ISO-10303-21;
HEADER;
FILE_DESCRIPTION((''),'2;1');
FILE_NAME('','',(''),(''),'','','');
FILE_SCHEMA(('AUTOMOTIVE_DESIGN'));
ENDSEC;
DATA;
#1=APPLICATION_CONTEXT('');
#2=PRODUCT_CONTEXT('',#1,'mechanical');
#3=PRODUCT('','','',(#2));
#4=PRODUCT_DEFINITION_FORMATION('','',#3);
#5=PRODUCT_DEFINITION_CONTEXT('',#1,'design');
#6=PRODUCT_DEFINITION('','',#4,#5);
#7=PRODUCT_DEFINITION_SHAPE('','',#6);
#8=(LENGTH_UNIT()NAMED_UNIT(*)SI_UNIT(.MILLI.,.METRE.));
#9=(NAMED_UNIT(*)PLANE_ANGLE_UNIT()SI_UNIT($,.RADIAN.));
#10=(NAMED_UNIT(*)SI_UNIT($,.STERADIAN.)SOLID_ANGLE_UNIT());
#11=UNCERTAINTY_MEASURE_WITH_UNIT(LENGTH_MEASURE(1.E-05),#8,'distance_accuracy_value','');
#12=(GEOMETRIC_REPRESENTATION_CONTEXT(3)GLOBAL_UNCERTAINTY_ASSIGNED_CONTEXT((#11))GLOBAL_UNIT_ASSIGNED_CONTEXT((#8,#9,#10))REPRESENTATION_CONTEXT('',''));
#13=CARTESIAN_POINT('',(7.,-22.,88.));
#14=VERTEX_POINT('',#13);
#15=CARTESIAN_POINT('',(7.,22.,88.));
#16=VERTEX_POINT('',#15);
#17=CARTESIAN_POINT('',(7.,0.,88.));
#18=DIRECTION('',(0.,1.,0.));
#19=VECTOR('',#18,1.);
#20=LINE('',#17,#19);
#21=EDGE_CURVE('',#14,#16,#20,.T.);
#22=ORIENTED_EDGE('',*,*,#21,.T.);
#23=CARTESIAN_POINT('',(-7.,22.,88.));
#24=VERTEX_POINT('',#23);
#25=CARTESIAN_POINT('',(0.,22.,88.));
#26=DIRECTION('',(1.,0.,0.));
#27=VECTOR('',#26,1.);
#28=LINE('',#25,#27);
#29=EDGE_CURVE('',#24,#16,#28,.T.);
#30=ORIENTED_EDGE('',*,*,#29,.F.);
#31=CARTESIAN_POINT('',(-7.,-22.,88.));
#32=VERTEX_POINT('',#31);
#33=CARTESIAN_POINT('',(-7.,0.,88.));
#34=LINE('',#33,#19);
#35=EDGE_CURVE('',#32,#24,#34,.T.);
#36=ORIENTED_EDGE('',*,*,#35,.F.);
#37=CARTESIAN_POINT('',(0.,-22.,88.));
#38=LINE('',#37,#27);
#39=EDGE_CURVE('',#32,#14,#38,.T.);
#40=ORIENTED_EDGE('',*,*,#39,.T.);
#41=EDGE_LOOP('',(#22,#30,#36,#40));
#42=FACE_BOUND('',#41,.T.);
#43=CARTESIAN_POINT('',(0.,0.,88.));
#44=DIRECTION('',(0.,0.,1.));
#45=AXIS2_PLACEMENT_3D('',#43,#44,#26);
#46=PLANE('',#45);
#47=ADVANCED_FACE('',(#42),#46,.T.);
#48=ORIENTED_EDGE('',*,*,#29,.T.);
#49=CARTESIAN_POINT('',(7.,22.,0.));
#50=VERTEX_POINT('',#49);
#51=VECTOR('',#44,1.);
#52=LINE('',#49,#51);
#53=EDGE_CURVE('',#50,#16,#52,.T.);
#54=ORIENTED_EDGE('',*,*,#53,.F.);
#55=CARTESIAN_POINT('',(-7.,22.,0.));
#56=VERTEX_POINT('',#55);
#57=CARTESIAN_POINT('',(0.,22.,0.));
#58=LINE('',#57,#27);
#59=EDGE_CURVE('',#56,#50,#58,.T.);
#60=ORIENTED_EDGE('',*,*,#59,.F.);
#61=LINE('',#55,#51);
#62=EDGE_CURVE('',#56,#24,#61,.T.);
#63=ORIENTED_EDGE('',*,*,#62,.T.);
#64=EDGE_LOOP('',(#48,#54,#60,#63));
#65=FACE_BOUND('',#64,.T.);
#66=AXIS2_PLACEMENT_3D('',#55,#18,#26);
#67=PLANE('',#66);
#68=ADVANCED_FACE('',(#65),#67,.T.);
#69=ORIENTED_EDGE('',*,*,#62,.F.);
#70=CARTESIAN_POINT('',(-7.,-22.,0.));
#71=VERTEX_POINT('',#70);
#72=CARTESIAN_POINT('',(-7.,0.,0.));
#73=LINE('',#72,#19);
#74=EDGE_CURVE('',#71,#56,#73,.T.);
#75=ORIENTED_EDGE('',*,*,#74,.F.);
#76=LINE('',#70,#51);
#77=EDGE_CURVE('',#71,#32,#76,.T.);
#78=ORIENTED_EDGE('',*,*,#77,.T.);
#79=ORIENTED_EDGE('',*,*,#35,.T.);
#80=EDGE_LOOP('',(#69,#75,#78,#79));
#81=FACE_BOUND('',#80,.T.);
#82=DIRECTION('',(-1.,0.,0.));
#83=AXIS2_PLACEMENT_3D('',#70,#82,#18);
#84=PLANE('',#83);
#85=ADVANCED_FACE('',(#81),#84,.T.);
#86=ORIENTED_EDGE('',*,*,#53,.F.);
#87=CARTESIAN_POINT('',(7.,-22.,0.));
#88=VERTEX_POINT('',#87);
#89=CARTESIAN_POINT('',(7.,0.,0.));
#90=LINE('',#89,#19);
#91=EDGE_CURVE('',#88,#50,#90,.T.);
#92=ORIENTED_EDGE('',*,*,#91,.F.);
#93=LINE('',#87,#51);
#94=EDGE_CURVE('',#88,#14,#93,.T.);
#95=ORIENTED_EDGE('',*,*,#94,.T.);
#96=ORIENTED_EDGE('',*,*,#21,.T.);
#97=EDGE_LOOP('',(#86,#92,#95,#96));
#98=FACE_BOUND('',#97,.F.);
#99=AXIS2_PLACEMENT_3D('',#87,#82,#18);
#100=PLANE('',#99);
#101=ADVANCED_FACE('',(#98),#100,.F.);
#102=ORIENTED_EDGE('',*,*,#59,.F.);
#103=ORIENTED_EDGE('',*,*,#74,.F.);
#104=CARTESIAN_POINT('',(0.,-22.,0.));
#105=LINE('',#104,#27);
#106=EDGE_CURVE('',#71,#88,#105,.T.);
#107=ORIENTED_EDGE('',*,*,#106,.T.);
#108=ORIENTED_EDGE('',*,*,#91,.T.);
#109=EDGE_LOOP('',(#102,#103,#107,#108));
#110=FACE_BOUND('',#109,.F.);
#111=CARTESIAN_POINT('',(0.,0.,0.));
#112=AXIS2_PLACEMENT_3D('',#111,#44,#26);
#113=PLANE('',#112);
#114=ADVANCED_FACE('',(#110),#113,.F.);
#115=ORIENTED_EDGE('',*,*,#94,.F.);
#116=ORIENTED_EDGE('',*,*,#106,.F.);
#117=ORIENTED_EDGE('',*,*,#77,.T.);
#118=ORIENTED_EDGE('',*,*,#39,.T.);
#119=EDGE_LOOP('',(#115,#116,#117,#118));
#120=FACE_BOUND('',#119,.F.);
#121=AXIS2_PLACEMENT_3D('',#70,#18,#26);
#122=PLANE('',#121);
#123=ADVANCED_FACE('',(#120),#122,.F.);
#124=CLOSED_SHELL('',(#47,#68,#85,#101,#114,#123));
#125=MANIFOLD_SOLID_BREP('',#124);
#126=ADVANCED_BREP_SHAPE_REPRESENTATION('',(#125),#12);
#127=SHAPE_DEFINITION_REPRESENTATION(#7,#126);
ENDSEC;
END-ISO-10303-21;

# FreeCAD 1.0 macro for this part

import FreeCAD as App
import Part
import Sketcher


def add_polygon(sketch, points):
    """Adds a closed chain of lines whose ends are joined by coincident constraints."""
    first, n = sketch.GeometryCount, len(points)
    for a, b in zip(points, points[1:] + points[:1]):
        sketch.addGeometry(Part.LineSegment(App.Vector(*a, 0), App.Vector(*b, 0)), False)
    for i in range(n):
        sketch.addConstraint(Sketcher.Constraint("Coincident", first + i, 2, first + (i + 1) % n, 1))

doc = App.newDocument("Part")
body = doc.addObject("PartDesign::Body", "Body")

# Sketch on XY plane
sketch1 = body.newObject("Sketcher::SketchObject", "Sketch")
sketch1.AttachmentSupport = (doc.getObject("XY_Plane"), [""])
sketch1.MapMode = "FlatFace"
add_polygon(sketch1, [(-7, 22), (-7, -22), (7, -22), (7, 22)])  # lines 0-3
sketch1.addConstraint([
    Sketcher.Constraint("Vertical", 0),
    Sketcher.Constraint("Horizontal", 1),
    Sketcher.Constraint("Vertical", 2),
    Sketcher.Constraint("Horizontal", 3),
    Sketcher.Constraint("Symmetric", 0, 2, 2, 2, -1, 1),
    Sketcher.Constraint("DistanceX", 1, 1, 1, 2, 14.0),
    Sketcher.Constraint("DistanceY", 0, 2, 0, 1, 44.0),
])
pad1 = body.newObject("PartDesign::Pad", "Pad")
pad1.Profile = sketch1
pad1.Length = 88

doc.recompute()
